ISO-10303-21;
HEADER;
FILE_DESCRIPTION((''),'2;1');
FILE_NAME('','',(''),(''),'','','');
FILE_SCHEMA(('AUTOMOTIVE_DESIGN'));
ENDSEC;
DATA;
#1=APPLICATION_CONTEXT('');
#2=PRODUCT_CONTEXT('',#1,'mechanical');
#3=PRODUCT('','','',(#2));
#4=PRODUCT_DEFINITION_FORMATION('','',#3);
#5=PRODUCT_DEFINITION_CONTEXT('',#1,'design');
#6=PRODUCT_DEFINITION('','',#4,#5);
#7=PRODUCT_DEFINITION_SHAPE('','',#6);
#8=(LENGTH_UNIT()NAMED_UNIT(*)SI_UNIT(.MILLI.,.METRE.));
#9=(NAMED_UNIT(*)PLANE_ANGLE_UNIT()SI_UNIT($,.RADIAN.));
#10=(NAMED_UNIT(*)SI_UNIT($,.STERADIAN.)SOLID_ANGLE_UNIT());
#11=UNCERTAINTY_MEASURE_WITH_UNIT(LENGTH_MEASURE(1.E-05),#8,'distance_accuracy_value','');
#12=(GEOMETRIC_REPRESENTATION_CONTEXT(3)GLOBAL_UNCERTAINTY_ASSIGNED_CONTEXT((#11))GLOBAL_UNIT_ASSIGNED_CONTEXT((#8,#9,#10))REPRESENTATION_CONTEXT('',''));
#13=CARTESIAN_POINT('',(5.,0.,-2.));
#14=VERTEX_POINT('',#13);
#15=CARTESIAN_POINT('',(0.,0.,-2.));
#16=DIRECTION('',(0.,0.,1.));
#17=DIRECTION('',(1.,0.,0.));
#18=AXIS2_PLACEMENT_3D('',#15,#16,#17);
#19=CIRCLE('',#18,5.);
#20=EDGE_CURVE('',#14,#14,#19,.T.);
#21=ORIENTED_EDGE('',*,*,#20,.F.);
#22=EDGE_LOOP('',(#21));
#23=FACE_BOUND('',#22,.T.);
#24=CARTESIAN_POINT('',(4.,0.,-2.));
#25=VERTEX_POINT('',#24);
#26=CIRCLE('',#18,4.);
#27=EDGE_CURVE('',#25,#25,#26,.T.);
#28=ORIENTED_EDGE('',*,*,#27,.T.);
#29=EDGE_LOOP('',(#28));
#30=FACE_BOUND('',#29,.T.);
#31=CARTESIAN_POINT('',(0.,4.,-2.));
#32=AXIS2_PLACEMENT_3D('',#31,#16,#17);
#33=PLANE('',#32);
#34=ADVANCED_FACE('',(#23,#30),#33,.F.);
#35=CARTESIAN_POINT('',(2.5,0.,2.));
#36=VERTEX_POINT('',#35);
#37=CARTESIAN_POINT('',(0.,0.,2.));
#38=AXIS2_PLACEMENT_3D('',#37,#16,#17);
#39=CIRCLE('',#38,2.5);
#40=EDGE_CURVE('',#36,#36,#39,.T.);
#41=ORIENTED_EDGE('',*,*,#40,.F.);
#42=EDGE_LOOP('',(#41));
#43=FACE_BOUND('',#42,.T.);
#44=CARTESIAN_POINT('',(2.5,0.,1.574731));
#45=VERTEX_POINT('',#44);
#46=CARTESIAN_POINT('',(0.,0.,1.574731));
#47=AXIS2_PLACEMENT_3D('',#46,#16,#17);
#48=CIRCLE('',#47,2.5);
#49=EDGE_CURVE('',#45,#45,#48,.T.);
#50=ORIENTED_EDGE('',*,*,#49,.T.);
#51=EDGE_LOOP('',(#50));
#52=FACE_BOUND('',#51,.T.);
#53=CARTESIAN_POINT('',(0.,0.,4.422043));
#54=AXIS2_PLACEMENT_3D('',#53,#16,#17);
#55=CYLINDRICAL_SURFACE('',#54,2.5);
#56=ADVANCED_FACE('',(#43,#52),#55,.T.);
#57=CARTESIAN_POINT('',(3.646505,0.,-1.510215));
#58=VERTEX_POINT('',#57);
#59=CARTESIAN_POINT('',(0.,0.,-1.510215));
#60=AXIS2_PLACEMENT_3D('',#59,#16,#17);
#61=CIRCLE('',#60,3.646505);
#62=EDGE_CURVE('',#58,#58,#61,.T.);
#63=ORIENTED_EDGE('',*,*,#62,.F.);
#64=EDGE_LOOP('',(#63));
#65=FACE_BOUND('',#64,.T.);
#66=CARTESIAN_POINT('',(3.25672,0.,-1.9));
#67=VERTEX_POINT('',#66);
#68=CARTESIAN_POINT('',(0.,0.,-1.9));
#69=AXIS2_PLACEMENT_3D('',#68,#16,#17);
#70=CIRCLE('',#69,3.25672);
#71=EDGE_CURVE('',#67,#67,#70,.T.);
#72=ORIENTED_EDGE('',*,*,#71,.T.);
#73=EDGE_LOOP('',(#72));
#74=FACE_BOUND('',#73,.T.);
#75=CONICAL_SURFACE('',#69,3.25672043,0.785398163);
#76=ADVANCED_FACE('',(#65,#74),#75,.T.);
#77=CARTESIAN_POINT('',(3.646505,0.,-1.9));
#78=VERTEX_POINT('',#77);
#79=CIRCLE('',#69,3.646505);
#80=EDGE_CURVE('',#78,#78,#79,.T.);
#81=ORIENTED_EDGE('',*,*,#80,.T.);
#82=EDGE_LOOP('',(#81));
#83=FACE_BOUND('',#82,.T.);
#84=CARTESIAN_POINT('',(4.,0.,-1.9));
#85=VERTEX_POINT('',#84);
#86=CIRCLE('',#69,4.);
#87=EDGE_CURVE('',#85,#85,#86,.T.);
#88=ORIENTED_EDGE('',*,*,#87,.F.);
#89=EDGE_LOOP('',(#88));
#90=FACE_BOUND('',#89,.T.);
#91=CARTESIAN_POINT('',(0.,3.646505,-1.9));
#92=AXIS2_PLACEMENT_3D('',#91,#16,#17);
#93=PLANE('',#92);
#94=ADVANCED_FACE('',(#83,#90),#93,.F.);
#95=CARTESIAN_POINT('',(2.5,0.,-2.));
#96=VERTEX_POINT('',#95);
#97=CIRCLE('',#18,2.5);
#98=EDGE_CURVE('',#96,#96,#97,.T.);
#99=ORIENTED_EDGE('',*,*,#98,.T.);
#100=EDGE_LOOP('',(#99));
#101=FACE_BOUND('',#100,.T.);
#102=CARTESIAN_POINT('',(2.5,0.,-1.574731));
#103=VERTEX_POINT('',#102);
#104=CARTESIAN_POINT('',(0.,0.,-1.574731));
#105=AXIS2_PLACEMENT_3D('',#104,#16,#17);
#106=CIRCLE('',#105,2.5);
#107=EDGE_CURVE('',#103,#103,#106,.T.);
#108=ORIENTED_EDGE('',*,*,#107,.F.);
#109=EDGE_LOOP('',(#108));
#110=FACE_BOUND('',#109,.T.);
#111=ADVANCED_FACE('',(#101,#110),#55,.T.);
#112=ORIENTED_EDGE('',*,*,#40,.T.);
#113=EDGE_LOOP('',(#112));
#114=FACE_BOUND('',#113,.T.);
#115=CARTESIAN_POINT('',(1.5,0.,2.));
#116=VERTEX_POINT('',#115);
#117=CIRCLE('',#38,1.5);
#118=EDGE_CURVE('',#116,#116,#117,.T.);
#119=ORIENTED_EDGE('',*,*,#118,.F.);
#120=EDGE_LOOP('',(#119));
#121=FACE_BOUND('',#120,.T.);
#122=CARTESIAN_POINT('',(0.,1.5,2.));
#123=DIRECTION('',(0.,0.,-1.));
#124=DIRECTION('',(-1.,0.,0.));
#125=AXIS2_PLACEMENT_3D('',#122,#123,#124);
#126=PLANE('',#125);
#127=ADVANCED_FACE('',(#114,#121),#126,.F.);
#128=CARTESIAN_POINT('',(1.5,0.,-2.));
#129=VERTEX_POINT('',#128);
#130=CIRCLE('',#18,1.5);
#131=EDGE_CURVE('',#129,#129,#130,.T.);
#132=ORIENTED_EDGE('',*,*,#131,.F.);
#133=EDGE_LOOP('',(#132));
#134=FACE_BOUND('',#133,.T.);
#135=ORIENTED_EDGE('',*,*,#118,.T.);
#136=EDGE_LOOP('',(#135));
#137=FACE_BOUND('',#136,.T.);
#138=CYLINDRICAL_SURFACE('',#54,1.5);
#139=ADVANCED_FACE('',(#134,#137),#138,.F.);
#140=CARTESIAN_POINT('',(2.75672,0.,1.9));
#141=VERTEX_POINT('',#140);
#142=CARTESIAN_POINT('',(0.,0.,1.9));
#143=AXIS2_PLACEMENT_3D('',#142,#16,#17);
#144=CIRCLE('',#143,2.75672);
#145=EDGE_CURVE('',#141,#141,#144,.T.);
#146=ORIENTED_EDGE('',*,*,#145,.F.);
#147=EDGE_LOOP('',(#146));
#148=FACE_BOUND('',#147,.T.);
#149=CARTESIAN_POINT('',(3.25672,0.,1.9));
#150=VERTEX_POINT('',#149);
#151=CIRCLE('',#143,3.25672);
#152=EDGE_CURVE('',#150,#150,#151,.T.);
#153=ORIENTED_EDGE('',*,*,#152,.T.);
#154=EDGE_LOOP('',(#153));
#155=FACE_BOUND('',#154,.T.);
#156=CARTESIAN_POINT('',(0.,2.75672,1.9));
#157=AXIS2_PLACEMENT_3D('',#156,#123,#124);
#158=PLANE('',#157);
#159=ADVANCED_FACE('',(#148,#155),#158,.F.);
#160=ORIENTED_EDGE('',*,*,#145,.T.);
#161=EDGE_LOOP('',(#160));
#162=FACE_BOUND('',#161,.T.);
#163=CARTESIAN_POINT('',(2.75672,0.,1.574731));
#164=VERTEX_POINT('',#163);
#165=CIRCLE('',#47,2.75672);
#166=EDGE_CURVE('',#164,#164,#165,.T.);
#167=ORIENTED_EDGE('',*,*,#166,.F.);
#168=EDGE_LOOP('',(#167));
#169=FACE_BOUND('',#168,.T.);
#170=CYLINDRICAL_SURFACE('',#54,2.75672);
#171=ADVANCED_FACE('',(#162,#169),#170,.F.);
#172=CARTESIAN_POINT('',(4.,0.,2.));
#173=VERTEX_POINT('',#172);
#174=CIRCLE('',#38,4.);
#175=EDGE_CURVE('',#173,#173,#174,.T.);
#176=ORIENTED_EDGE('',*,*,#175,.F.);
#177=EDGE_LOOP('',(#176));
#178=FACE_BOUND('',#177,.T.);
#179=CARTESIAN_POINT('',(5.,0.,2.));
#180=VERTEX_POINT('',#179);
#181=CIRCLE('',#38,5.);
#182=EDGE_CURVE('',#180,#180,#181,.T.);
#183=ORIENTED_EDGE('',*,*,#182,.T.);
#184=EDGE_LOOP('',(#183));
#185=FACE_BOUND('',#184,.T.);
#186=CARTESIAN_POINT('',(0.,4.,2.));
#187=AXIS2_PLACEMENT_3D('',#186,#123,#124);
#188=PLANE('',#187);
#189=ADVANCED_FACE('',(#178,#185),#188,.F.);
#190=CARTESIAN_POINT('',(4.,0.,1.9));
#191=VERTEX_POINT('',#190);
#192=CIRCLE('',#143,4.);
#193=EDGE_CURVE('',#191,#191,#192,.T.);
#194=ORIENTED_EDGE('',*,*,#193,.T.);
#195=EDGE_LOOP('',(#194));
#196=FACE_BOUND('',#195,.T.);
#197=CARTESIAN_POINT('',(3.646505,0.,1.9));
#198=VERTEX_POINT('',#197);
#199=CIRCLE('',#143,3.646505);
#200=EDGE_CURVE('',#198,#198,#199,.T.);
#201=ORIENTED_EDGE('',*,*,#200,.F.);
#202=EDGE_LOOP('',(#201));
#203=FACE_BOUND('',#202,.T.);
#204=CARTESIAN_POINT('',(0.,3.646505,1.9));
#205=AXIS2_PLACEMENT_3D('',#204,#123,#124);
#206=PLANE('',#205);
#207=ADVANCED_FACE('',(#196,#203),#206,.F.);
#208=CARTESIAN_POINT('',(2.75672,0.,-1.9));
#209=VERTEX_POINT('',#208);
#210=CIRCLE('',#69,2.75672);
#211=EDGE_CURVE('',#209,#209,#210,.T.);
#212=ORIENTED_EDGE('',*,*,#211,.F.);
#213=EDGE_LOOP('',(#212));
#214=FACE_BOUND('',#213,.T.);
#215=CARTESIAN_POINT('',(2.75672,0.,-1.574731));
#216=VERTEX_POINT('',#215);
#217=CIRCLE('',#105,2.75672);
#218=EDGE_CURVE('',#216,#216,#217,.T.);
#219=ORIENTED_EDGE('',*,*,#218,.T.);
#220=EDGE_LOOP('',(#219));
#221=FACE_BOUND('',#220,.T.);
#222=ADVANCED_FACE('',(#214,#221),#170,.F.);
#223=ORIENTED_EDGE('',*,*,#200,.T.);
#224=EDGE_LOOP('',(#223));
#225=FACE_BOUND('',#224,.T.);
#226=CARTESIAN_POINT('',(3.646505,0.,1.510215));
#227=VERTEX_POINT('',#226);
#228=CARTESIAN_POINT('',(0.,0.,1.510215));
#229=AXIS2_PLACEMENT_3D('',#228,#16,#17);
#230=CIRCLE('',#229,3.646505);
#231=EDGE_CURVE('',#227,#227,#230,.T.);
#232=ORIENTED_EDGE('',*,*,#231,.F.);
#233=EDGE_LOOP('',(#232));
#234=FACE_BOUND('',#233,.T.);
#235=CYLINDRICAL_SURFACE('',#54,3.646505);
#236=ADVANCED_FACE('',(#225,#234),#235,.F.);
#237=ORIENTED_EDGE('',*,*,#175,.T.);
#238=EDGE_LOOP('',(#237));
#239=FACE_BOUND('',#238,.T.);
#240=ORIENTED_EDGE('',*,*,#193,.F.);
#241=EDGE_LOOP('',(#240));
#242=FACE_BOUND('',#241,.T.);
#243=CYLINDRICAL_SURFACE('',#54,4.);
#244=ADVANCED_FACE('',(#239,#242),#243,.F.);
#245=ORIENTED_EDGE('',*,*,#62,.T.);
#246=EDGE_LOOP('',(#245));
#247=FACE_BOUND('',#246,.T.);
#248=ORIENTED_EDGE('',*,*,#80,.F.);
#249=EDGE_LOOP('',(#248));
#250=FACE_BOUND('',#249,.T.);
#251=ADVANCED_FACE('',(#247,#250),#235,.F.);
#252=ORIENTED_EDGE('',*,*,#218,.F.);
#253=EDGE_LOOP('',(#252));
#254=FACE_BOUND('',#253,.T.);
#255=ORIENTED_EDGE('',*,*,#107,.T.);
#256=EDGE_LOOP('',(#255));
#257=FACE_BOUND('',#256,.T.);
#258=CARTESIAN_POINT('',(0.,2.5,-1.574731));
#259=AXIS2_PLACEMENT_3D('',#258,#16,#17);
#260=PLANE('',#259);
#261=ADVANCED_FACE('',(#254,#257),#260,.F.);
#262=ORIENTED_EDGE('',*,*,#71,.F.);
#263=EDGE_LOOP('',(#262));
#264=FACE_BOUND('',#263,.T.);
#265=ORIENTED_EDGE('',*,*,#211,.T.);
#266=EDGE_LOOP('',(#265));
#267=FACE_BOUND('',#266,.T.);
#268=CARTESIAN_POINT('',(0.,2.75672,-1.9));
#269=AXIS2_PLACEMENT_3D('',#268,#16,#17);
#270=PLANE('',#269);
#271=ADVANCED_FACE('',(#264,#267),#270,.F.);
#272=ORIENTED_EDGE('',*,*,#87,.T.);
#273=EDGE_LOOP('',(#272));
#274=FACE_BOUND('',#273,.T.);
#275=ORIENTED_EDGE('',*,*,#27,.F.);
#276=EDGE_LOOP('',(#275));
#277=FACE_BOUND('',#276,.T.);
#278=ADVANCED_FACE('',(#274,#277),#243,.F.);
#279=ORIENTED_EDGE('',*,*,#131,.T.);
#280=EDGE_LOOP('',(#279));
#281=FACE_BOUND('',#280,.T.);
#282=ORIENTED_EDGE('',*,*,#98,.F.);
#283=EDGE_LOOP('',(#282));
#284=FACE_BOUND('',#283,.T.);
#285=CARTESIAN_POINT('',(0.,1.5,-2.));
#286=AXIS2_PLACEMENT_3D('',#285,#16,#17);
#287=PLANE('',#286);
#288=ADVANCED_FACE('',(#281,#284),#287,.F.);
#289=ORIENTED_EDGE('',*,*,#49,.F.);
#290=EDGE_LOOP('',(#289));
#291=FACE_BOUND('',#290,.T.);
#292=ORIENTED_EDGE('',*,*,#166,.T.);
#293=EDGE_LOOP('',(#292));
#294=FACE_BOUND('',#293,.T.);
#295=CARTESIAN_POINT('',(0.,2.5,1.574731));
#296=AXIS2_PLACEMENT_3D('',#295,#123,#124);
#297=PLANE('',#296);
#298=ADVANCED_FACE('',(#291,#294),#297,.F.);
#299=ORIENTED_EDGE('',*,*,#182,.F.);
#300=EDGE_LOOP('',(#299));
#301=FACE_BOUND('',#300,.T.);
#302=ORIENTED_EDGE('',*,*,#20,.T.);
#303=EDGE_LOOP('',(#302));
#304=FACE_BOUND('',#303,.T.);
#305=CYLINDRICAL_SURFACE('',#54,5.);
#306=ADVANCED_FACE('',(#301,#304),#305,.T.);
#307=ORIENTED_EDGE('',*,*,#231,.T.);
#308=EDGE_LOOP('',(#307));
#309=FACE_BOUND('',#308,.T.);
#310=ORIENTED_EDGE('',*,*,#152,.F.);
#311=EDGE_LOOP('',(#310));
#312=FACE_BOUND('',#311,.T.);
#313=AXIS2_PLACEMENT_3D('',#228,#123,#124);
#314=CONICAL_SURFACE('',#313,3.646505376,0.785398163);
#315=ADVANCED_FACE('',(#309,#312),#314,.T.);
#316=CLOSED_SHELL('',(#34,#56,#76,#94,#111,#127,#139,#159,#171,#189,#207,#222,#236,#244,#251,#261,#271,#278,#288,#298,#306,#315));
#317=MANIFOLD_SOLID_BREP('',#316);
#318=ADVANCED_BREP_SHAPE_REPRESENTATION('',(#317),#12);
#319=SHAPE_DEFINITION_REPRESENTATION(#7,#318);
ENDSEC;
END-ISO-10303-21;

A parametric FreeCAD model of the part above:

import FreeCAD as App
import Part
import Sketcher
Q = App.Units.Quantity


def add_polygon(sketch, points):
    """Adds a closed chain of lines whose ends are joined by coincident constraints."""
    first, n = sketch.GeometryCount, len(points)
    for a, b in zip(points, points[1:] + points[:1]):
        sketch.addGeometry(Part.LineSegment(App.Vector(*a, 0), App.Vector(*b, 0)), False)
    for i in range(n):
        sketch.addConstraint(Sketcher.Constraint("Coincident", first + i, 2, first + (i + 1) % n, 1))

doc = App.newDocument("Part")
body = doc.addObject("PartDesign::Body", "Body")

sketch1 = doc.addObject("Sketcher::SketchObject", "Sketch")
body.addObject(sketch1)
sketch1.AttachmentSupport = (doc.YZ_Plane, [""])
sketch1.MapMode = "FlatFace"
add_polygon(sketch1, [(1.5, 2), (1.5, -2), (2.5, -2), (2.5, -1.57), (2.76, -1.57), (2.76, -1.9), (3.26, -1.9), (3.65, -1.51), (3.65, -1.9), (4, -1.9), (4, -2), (5, -2), (5, 2), (4, 2), (4, 1.9), (3.65, 1.9), (3.65, 1.51), (3.26, 1.9), (2.76, 1.9), (2.76, 1.57), (2.5, 1.57), (2.5, 2)])
sketch1.addConstraint([
    Sketcher.Constraint("Vertical", 0),
    Sketcher.Constraint("Horizontal", 1),
    Sketcher.Constraint("Vertical", 2),
    Sketcher.Constraint("Horizontal", 3),
    Sketcher.Constraint("Vertical", 4),
    Sketcher.Constraint("Horizontal", 5),
    Sketcher.Constraint("Vertical", 7),
    Sketcher.Constraint("Horizontal", 8),
    Sketcher.Constraint("Vertical", 9),
    Sketcher.Constraint("Horizontal", 10),
    Sketcher.Constraint("Vertical", 11),
    Sketcher.Constraint("Horizontal", 12),
    Sketcher.Constraint("Vertical", 13),
    Sketcher.Constraint("Horizontal", 14),
    Sketcher.Constraint("Vertical", 15),
    Sketcher.Constraint("Horizontal", 17),
    Sketcher.Constraint("Vertical", 18),
    Sketcher.Constraint("Horizontal", 19),
    Sketcher.Constraint("Vertical", 20),
    Sketcher.Constraint("Horizontal", 21),
    Sketcher.Constraint("Symmetric", 9, 2, 12, 2, -1),
    Sketcher.Constraint("Symmetric", 7, 2, 14, 2, -1),
    Sketcher.Constraint("Symmetric", 5, 2, 16, 2, -1),
    Sketcher.Constraint("Symmetric", 3, 2, 18, 2, -1),
    Sketcher.Constraint("Symmetric", 1, 2, 20, 2, -1),
    Sketcher.Constraint("Perpendicular", 6, 16),
    Sketcher.Constraint("Horizontal", 5, 2, 7, 2),
    Sketcher.Constraint("Horizontal", 1, 2, 9, 2),
    Sketcher.Constraint("Equal", 1, 10),
    Sketcher.Constraint("Equal", 7, 15),
    Sketcher.Constraint("DistanceX", 1, 1, 1, 2, Q("1 mm")),
    Sketcher.Constraint("DistanceY", 0, 2, 0, 1, Q("4 mm")),
    Sketcher.Constraint("DistanceX", 5, 1, 5, 2, Q("0.5 mm")),
    Sketcher.Constraint("DistanceY", 9, 2, 9, 1, Q("0.1 mm")),
    Sketcher.Constraint("DistanceX", -1, 1, 8, 2, Q("4 mm")),
    Sketcher.Constraint("DistanceX", -1, 1, 0, 2, Q("1.5 mm")),
    Sketcher.Constraint("DistanceX", 3, 1, 3, 2, Q("0.25672 mm")),
    Sketcher.Constraint("DistanceY", 2, 1, 2, 2, Q("0.425269 mm")),
    Sketcher.Constraint("Distance", 6, Q("0.551239 mm")),
])
revolution = doc.addObject("PartDesign::Revolution", "Revolution")
body.addObject(revolution)
revolution.Profile = sketch1
revolution.ReferenceAxis = (sketch1, ["V_Axis"])
revolution.Angle = 360

doc.recompute()
